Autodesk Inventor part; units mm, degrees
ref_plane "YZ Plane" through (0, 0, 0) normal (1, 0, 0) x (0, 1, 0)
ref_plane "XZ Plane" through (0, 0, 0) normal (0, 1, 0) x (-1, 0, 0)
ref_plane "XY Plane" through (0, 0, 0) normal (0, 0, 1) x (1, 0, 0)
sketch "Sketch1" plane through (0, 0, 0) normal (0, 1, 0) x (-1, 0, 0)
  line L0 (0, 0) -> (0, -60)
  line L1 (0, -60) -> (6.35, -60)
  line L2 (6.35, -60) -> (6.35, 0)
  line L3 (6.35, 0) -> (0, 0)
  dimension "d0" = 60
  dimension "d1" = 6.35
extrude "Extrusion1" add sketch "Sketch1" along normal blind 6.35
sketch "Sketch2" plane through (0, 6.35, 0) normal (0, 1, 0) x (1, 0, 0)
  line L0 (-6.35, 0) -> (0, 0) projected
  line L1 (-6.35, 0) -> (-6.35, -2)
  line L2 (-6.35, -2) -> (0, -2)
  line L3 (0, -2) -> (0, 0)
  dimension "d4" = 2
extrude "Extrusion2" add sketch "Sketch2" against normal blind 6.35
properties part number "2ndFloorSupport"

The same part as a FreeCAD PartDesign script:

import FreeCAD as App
import Part
import Sketcher

V = App.Vector


def add_polygon(sketch, points):
    """Adds a closed chain of lines whose ends are joined by coincident constraints."""
    first, n = sketch.GeometryCount, len(points)
    for a, b in zip(points, points[1:] + points[:1]):
        sketch.addGeometry(Part.LineSegment(App.Vector(*a, 0), App.Vector(*b, 0)), False)
    for i in range(n):
        sketch.addConstraint(Sketcher.Constraint("Coincident", first + i, 2, first + (i + 1) % n, 1))

doc = App.newDocument("Part")
body = doc.addObject("PartDesign::Body", "Body")

# Sketch on XZ plane
sketch1 = body.newObject("Sketcher::SketchObject", "Sketch")
sketch1.AttachmentSupport = (doc.getObject("XZ_Plane"), [""])
sketch1.MapMode = "FlatFace"
add_polygon(sketch1, [(-6.35, 0), (0, 0), (0, -60), (-6.35, -60)])  # lines 0-3
sketch1.addConstraint([
    Sketcher.Constraint("Horizontal", 0),
    Sketcher.Constraint("Vertical", 1),
    Sketcher.Constraint("Horizontal", 2),
    Sketcher.Constraint("Vertical", 3),
    Sketcher.Constraint("Coincident", 0, 2, -1, 1),
    Sketcher.Constraint("DistanceY", 1, 2, 1, 1, 60.0),
    Sketcher.Constraint("DistanceX", 0, 1, 0, 2, 6.35),
])
pad1 = body.newObject("PartDesign::Pad", "Pad")
pad1.Profile = sketch1
pad1.Length = 6.35
pad1.Reversed = True

# Sketch on XZ plane
sketch2 = body.newObject("Sketcher::SketchObject", "Sketch001")
sketch2.AttachmentSupport = (doc.getObject("XZ_Plane"), [""])
sketch2.MapMode = "FlatFace"
sketch2.AttachmentOffset = App.Placement(V(0, 0, -6.35), App.Rotation())
add_polygon(sketch2, [(0, 0), (-6.35, 0), (-6.35, 2), (0, 2)])  # lines 0-3
sketch2.addConstraint([
    Sketcher.Constraint("Horizontal", 0),
    Sketcher.Constraint("Vertical", 1),
    Sketcher.Constraint("Horizontal", 2),
    Sketcher.Constraint("Vertical", 3),
    Sketcher.Constraint("Coincident", 3, 2, -1, 1),
    Sketcher.Constraint("DistanceY", 1, 1, 1, 2, 2.0),
    Sketcher.Constraint("DistanceX", 0, 2, 0, 1, 6.35),
])
pad2 = body.newObject("PartDesign::Pad", "Pad001")
pad2.Profile = sketch2
pad2.Length = 6.35

doc.recompute()
